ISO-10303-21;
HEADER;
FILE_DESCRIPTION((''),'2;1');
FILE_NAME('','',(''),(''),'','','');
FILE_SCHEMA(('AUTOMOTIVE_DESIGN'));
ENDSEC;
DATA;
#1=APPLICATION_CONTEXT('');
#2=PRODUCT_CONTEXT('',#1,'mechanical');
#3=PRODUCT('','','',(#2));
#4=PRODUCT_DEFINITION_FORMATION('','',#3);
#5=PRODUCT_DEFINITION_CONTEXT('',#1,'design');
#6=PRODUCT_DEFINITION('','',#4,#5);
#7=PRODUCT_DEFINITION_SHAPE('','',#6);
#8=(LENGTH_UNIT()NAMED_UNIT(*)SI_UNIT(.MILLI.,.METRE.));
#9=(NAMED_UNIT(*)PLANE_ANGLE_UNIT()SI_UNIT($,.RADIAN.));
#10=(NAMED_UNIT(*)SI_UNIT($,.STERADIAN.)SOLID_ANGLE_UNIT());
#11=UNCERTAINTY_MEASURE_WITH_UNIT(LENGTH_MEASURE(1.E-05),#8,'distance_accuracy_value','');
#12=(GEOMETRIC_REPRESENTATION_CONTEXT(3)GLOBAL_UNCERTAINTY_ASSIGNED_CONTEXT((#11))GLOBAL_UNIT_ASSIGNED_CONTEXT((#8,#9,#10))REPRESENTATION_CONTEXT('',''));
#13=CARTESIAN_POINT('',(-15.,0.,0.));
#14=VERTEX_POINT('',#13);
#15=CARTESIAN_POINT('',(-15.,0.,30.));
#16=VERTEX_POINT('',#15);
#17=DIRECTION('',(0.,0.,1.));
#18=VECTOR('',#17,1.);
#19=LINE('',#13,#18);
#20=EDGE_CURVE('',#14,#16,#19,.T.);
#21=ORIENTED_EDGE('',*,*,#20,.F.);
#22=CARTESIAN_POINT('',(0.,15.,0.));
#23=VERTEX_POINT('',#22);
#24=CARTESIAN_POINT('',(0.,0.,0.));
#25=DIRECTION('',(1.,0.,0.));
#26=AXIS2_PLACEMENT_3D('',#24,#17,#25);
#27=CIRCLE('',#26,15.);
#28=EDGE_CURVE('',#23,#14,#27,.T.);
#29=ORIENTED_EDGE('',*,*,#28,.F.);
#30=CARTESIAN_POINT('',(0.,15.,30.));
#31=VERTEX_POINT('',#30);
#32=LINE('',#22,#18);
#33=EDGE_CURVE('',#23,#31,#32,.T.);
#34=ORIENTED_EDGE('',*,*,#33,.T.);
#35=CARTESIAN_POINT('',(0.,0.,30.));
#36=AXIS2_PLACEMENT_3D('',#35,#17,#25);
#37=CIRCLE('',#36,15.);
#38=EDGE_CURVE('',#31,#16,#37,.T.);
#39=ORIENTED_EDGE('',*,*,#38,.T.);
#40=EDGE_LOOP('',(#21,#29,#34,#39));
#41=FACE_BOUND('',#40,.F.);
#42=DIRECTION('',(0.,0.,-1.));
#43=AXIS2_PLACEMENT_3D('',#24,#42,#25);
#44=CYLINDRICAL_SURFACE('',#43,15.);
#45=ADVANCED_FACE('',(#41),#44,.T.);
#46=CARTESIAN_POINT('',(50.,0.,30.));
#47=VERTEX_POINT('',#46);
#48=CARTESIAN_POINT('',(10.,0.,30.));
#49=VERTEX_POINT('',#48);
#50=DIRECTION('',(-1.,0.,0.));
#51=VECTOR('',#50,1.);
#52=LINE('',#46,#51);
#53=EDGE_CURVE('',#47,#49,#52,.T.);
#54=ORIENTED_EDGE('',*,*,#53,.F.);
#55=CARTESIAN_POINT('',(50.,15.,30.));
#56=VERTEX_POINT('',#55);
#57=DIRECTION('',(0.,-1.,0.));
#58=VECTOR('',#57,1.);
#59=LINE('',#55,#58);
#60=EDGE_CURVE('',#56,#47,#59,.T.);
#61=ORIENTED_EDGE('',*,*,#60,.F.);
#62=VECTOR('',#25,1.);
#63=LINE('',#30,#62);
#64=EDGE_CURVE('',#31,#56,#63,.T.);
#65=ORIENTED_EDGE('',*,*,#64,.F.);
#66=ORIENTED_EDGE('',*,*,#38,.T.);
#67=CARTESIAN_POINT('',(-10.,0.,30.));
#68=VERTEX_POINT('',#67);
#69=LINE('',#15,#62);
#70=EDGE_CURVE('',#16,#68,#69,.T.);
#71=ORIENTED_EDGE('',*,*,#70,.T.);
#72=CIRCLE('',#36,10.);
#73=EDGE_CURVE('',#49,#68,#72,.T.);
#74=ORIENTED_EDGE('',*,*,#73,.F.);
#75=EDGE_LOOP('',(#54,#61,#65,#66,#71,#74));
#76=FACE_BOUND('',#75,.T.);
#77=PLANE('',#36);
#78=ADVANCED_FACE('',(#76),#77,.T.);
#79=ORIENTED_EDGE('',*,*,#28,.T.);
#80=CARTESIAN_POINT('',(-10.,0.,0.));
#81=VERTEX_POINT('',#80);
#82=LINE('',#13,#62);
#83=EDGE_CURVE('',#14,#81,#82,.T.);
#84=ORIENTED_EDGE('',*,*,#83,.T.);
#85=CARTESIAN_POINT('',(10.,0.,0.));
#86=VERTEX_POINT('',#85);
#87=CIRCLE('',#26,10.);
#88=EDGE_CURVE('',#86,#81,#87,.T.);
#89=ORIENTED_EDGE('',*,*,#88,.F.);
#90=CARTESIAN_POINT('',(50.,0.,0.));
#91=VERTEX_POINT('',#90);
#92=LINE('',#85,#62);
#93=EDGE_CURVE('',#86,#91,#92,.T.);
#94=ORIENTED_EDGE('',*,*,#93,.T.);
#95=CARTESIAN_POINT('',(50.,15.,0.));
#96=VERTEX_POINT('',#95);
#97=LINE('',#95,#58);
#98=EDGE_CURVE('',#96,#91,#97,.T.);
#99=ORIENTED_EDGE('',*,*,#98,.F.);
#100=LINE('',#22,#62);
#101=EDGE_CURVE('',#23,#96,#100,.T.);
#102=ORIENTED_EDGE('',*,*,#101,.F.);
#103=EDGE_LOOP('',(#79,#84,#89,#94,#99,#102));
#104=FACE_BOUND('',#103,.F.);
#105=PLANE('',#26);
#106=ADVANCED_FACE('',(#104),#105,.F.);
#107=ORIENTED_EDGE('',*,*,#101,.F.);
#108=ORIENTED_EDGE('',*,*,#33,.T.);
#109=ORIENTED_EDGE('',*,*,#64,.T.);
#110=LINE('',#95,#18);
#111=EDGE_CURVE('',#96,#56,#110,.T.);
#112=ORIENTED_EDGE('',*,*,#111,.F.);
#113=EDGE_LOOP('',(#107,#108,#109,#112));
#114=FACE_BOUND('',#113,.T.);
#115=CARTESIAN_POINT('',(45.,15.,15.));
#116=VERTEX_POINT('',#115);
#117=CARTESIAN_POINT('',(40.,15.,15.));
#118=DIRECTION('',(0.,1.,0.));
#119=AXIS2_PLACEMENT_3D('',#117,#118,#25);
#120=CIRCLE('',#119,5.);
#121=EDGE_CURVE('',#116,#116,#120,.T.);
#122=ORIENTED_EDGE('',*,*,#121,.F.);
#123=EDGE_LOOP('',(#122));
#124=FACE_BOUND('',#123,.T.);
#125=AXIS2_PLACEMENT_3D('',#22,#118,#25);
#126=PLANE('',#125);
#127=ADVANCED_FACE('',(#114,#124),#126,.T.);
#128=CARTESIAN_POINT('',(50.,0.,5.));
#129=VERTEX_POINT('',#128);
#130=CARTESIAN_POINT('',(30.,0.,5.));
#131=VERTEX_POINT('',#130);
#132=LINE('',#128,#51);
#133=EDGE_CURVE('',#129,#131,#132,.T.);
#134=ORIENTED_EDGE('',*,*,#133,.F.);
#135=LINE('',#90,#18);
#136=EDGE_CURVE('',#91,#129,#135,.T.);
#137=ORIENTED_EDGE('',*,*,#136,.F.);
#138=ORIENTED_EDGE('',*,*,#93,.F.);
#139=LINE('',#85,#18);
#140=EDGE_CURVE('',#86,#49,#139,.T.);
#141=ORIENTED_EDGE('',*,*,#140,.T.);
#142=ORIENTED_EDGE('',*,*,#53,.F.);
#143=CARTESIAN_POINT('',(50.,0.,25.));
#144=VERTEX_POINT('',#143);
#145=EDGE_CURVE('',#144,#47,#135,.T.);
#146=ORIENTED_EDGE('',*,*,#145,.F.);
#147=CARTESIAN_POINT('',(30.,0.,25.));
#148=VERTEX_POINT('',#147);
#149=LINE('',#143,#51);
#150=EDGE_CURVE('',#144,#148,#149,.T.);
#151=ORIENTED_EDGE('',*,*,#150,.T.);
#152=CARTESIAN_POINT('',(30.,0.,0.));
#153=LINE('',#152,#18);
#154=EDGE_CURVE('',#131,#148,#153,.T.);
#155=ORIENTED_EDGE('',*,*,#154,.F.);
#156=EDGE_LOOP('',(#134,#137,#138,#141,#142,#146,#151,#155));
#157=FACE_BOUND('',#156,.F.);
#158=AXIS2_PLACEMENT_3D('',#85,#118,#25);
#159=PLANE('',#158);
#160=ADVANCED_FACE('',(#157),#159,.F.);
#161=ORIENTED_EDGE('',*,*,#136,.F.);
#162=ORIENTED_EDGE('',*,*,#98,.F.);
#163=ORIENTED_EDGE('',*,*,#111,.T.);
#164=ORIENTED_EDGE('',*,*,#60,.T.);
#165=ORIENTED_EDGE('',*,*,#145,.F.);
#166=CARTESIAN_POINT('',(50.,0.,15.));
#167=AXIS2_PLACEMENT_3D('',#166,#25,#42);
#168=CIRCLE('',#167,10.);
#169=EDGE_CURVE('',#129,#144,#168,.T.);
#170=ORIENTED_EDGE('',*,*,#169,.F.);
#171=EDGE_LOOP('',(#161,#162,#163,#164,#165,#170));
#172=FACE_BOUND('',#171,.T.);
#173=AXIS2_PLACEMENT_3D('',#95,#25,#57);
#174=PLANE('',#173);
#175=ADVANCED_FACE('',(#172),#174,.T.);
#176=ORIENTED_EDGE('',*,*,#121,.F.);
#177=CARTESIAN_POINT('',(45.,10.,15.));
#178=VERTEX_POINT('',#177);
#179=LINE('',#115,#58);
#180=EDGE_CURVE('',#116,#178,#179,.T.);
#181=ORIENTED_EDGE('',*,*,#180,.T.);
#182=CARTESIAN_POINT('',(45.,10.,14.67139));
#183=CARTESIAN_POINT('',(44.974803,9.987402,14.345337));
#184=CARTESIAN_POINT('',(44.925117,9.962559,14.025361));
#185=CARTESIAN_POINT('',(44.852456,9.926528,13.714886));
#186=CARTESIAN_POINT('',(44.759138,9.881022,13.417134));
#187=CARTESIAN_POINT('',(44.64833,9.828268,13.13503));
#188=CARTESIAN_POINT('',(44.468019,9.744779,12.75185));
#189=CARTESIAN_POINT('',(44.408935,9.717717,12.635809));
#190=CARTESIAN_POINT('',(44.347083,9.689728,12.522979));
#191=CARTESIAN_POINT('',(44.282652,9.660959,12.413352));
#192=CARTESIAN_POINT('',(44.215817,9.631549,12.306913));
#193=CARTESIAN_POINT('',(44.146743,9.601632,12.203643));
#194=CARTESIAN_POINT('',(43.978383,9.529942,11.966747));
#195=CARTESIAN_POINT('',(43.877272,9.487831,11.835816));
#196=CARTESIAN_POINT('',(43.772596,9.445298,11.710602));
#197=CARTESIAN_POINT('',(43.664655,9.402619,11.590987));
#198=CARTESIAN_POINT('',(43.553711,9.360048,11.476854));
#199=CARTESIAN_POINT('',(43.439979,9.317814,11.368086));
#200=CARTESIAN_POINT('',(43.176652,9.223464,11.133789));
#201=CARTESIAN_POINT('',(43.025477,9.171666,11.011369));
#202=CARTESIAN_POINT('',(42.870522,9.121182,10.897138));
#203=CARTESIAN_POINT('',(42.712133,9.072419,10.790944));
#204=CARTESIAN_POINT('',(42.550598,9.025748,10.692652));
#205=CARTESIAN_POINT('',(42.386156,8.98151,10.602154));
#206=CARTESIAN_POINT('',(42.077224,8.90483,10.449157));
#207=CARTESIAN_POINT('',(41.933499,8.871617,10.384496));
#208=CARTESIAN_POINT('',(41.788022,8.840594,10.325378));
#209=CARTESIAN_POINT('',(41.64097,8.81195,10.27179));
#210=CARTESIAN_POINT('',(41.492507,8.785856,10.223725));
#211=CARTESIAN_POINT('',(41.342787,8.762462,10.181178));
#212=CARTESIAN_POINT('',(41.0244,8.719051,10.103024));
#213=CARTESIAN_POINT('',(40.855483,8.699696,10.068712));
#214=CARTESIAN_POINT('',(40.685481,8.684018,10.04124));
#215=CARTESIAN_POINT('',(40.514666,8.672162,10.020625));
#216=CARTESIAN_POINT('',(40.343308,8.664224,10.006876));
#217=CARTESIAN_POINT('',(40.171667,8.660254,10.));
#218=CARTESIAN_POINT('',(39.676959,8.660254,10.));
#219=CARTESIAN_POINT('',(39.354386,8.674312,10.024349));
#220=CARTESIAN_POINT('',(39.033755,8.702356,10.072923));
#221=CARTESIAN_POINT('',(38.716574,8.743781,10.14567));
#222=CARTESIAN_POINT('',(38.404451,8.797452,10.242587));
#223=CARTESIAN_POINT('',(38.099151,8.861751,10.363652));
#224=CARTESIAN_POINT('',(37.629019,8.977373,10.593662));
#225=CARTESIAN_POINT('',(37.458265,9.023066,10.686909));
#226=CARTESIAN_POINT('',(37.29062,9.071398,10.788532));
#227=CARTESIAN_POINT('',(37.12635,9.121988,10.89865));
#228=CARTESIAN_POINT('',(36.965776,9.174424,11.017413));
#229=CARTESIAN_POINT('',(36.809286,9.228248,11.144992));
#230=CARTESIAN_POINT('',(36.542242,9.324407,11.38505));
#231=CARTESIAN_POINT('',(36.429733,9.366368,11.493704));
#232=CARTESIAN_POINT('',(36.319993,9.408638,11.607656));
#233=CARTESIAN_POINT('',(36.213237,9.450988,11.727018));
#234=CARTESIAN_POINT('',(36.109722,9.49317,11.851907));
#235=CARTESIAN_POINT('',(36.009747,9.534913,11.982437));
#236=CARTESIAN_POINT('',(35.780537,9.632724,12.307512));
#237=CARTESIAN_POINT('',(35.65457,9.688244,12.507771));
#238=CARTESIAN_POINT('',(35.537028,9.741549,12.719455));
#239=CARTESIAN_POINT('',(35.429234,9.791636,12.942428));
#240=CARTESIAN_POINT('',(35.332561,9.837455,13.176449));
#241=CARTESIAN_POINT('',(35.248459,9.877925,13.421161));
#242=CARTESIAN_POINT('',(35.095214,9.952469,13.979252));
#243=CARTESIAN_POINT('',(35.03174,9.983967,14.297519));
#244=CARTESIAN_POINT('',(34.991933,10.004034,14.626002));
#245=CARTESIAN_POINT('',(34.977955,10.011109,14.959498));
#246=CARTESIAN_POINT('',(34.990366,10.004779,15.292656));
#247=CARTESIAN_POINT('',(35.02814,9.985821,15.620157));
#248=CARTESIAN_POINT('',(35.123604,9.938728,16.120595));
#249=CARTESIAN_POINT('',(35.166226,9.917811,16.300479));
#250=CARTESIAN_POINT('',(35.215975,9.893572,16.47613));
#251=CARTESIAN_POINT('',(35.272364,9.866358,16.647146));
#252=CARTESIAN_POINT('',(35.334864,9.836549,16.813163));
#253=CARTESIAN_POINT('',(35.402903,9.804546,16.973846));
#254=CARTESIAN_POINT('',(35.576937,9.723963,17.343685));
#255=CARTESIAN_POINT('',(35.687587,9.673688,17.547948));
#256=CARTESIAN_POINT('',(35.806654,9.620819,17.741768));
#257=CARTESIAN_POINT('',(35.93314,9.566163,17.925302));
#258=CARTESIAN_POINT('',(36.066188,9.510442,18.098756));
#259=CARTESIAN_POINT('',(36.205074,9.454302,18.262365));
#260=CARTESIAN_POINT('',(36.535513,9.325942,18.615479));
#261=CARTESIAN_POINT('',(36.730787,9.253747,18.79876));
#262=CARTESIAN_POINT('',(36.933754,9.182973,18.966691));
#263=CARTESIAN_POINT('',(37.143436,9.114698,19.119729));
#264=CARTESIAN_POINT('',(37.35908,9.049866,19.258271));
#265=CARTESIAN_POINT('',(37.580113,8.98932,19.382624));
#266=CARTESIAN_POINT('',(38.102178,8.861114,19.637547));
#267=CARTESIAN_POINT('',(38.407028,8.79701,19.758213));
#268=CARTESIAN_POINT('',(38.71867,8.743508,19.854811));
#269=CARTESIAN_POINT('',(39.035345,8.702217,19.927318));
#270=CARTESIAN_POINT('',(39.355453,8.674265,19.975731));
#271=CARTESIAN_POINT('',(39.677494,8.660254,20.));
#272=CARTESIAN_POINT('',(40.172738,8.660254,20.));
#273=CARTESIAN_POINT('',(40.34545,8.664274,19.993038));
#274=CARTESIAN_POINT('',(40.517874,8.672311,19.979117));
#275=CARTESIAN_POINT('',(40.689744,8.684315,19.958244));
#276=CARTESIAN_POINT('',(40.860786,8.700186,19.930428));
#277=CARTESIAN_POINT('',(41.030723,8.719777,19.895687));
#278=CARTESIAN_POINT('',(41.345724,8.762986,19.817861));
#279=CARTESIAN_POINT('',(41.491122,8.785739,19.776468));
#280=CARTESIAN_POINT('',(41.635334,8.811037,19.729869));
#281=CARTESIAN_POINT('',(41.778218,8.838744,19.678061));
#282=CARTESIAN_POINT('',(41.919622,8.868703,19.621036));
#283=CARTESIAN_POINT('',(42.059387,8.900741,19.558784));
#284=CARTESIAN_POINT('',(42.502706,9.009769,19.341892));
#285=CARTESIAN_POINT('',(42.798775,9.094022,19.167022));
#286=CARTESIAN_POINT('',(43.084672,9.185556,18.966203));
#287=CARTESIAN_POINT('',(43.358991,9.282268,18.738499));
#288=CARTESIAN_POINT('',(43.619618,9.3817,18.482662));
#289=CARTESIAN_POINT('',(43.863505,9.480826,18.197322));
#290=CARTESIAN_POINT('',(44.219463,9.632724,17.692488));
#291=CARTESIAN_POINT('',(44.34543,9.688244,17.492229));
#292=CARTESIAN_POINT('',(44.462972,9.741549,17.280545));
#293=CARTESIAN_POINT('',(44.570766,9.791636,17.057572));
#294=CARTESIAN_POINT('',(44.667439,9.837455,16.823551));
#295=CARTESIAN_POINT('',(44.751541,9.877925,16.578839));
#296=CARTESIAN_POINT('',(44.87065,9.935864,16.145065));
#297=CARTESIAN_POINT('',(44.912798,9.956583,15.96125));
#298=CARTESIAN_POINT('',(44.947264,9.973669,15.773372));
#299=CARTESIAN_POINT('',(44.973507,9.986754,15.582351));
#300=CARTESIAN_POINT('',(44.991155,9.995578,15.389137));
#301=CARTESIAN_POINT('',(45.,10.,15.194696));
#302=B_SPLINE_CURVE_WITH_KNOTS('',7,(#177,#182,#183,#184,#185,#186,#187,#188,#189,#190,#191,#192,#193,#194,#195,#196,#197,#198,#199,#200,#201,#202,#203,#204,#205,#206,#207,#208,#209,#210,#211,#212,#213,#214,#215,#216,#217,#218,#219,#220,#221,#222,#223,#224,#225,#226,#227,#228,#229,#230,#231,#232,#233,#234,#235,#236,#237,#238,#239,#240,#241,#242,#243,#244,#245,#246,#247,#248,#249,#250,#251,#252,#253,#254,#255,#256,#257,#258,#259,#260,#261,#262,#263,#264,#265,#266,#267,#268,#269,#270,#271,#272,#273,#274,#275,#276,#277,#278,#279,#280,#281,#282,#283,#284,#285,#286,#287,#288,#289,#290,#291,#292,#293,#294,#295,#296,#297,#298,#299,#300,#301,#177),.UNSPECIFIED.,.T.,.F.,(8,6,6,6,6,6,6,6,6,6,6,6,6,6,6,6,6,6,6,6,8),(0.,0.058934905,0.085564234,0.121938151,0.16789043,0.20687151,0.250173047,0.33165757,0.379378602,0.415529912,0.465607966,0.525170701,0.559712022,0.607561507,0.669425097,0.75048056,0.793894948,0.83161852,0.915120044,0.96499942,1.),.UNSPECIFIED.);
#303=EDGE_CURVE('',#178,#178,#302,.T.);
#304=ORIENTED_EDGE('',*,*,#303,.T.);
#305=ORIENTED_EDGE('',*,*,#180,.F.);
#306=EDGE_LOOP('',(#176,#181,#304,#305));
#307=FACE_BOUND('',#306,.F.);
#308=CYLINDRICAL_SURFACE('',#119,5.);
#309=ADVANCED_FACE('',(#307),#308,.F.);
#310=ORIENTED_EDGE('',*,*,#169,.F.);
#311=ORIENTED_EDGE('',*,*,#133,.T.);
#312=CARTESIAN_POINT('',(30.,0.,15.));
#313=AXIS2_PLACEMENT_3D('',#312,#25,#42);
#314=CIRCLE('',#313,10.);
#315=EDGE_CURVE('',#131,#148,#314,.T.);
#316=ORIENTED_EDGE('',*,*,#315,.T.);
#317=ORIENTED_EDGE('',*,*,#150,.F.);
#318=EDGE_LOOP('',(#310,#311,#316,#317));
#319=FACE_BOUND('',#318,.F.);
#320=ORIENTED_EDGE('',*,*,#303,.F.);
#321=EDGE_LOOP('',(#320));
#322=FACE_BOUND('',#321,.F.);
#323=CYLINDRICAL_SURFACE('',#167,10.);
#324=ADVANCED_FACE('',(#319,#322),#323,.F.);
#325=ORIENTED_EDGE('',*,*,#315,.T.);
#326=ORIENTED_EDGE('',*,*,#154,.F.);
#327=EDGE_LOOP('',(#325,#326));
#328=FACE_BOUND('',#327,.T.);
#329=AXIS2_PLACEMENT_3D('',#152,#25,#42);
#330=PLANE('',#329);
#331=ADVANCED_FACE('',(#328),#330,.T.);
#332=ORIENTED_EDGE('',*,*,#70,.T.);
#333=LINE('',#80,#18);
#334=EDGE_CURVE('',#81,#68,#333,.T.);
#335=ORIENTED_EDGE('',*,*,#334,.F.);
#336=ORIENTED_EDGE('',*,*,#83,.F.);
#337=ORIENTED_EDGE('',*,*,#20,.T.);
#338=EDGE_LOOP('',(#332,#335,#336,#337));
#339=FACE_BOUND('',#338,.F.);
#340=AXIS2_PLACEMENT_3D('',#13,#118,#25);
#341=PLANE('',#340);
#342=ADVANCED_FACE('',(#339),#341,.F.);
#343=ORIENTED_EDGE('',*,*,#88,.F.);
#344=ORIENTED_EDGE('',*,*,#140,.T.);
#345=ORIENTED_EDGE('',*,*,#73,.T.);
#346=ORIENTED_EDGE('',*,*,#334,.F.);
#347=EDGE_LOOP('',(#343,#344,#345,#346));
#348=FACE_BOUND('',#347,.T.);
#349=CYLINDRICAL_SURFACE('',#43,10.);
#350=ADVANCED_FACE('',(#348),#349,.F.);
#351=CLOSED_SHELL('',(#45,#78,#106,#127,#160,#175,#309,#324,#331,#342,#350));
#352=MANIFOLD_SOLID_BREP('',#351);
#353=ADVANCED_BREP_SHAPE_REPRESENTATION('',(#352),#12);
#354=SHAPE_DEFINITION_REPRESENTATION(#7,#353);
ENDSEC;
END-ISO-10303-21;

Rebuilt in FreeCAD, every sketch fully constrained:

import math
import FreeCAD as App
import Part
import Sketcher
Q = App.Units.Quantity

doc = App.newDocument("Part")
body = doc.addObject("PartDesign::Body", "Body")

sketch1 = doc.addObject("Sketcher::SketchObject", "Sketch")
body.addObject(sketch1)
sketch1.AttachmentSupport = (doc.XY_Plane, [""])
sketch1.MapMode = "FlatFace"
sketch1.addGeometry([
    Part.ArcOfCircle(Part.Circle(App.Vector(0, 0, 0), App.Vector(0, 0, 1), 10), math.radians(0), math.radians(180)),
    Part.LineSegment(App.Vector(10, 0, 0), App.Vector(50, 0, 0)),
    Part.LineSegment(App.Vector(50, 0, 0), App.Vector(50, 15, 0)),
    Part.LineSegment(App.Vector(50, 15, 0), App.Vector(0, 15, 0)),
    Part.ArcOfCircle(Part.Circle(App.Vector(0, 0, 0), App.Vector(0, 0, 1), 15), math.radians(90), math.radians(180)),
    Part.LineSegment(App.Vector(-15, 0, 0), App.Vector(-10, 0, 0)),
], False)
sketch1.addConstraint([
    Sketcher.Constraint("Coincident", 0, 1, 1, 1),
    Sketcher.Constraint("Coincident", 1, 2, 2, 1),
    Sketcher.Constraint("Coincident", 2, 2, 3, 1),
    Sketcher.Constraint("Tangent", 3, 2, 4, 1),
    Sketcher.Constraint("Coincident", 4, 2, 5, 1),
    Sketcher.Constraint("Coincident", 5, 2, 0, 2),
    Sketcher.Constraint("Horizontal", 1),
    Sketcher.Constraint("Vertical", 2),
    Sketcher.Constraint("Horizontal", 3),
    Sketcher.Constraint("Horizontal", 5),
    Sketcher.Constraint("Coincident", 0, 3, -1, 1),
    Sketcher.Constraint("Coincident", 4, 3, -1, 1),
    Sketcher.Constraint("PointOnObject", 0, 1, -1),
    Sketcher.Constraint("PointOnObject", 4, 2, -1),
    Sketcher.Constraint("Radius", 0, Q("10 mm")),
    Sketcher.Constraint("Radius", 4, Q("15 mm")),
    Sketcher.Constraint("DistanceX", 3, 2, 3, 1, Q("50 mm")),
])
pad1 = doc.addObject("PartDesign::Pad", "Pad")
body.addObject(pad1)
pad1.Profile = sketch1
pad1.Length = 30

sketch2 = doc.addObject("Sketcher::SketchObject", "Sketch001")
body.addObject(sketch2)
sketch2.AttachmentSupport = (doc.YZ_Plane, [""])
sketch2.MapMode = "FlatFace"
sketch2.AttachmentOffset = App.Placement(App.Vector(0, 0, 50), App.Rotation())
sketch2.addGeometry([
    Part.LineSegment(App.Vector(0, 25, 0), App.Vector(0, 5, 0)),
    Part.ArcOfCircle(Part.Circle(App.Vector(0, 15, 0), App.Vector(0, 0, 1), 10), math.radians(-90), math.radians(90)),
], False)
sketch2.addConstraint([
    Sketcher.Constraint("Coincident", 0, 1, 1, 2),
    Sketcher.Constraint("Coincident", 1, 1, 0, 2),
    Sketcher.Constraint("Vertical", 0),
    Sketcher.Constraint("PointOnObject", 1, 3, -2),
    Sketcher.Constraint("PointOnObject", 0, 1, -2),
    Sketcher.Constraint("Radius", 1, Q("10 mm")),
    Sketcher.Constraint("DistanceY", -1, 1, 1, 3, Q("15 mm")),
])
pocket1 = doc.addObject("PartDesign::Pocket", "Pocket")
body.addObject(pocket1)
pocket1.Profile = sketch2
pocket1.Length = 20

sketch3 = doc.addObject("Sketcher::SketchObject", "Sketch002")
body.addObject(sketch3)
sketch3.AttachmentSupport = (doc.XZ_Plane, [""])
sketch3.MapMode = "FlatFace"
sketch3.AttachmentOffset = App.Placement(App.Vector(0, 0, -15), App.Rotation())
sketch3.addGeometry(Part.Circle(App.Vector(40, 15, 0), App.Vector(0, 0, 1), 5), False)
sketch3.addConstraint([
    Sketcher.Constraint("Diameter", 0, Q("10 mm")),
    Sketcher.Constraint("DistanceX", -1, 1, 0, 3, Q("40 mm")),
    Sketcher.Constraint("DistanceY", -1, 1, 0, 3, Q("15 mm")),
])
pocket2 = doc.addObject("PartDesign::Pocket", "Pocket001")
body.addObject(pocket2)
pocket2.Profile = sketch3
pocket2.Length = 10
pocket2.Reversed = True

doc.recompute()
